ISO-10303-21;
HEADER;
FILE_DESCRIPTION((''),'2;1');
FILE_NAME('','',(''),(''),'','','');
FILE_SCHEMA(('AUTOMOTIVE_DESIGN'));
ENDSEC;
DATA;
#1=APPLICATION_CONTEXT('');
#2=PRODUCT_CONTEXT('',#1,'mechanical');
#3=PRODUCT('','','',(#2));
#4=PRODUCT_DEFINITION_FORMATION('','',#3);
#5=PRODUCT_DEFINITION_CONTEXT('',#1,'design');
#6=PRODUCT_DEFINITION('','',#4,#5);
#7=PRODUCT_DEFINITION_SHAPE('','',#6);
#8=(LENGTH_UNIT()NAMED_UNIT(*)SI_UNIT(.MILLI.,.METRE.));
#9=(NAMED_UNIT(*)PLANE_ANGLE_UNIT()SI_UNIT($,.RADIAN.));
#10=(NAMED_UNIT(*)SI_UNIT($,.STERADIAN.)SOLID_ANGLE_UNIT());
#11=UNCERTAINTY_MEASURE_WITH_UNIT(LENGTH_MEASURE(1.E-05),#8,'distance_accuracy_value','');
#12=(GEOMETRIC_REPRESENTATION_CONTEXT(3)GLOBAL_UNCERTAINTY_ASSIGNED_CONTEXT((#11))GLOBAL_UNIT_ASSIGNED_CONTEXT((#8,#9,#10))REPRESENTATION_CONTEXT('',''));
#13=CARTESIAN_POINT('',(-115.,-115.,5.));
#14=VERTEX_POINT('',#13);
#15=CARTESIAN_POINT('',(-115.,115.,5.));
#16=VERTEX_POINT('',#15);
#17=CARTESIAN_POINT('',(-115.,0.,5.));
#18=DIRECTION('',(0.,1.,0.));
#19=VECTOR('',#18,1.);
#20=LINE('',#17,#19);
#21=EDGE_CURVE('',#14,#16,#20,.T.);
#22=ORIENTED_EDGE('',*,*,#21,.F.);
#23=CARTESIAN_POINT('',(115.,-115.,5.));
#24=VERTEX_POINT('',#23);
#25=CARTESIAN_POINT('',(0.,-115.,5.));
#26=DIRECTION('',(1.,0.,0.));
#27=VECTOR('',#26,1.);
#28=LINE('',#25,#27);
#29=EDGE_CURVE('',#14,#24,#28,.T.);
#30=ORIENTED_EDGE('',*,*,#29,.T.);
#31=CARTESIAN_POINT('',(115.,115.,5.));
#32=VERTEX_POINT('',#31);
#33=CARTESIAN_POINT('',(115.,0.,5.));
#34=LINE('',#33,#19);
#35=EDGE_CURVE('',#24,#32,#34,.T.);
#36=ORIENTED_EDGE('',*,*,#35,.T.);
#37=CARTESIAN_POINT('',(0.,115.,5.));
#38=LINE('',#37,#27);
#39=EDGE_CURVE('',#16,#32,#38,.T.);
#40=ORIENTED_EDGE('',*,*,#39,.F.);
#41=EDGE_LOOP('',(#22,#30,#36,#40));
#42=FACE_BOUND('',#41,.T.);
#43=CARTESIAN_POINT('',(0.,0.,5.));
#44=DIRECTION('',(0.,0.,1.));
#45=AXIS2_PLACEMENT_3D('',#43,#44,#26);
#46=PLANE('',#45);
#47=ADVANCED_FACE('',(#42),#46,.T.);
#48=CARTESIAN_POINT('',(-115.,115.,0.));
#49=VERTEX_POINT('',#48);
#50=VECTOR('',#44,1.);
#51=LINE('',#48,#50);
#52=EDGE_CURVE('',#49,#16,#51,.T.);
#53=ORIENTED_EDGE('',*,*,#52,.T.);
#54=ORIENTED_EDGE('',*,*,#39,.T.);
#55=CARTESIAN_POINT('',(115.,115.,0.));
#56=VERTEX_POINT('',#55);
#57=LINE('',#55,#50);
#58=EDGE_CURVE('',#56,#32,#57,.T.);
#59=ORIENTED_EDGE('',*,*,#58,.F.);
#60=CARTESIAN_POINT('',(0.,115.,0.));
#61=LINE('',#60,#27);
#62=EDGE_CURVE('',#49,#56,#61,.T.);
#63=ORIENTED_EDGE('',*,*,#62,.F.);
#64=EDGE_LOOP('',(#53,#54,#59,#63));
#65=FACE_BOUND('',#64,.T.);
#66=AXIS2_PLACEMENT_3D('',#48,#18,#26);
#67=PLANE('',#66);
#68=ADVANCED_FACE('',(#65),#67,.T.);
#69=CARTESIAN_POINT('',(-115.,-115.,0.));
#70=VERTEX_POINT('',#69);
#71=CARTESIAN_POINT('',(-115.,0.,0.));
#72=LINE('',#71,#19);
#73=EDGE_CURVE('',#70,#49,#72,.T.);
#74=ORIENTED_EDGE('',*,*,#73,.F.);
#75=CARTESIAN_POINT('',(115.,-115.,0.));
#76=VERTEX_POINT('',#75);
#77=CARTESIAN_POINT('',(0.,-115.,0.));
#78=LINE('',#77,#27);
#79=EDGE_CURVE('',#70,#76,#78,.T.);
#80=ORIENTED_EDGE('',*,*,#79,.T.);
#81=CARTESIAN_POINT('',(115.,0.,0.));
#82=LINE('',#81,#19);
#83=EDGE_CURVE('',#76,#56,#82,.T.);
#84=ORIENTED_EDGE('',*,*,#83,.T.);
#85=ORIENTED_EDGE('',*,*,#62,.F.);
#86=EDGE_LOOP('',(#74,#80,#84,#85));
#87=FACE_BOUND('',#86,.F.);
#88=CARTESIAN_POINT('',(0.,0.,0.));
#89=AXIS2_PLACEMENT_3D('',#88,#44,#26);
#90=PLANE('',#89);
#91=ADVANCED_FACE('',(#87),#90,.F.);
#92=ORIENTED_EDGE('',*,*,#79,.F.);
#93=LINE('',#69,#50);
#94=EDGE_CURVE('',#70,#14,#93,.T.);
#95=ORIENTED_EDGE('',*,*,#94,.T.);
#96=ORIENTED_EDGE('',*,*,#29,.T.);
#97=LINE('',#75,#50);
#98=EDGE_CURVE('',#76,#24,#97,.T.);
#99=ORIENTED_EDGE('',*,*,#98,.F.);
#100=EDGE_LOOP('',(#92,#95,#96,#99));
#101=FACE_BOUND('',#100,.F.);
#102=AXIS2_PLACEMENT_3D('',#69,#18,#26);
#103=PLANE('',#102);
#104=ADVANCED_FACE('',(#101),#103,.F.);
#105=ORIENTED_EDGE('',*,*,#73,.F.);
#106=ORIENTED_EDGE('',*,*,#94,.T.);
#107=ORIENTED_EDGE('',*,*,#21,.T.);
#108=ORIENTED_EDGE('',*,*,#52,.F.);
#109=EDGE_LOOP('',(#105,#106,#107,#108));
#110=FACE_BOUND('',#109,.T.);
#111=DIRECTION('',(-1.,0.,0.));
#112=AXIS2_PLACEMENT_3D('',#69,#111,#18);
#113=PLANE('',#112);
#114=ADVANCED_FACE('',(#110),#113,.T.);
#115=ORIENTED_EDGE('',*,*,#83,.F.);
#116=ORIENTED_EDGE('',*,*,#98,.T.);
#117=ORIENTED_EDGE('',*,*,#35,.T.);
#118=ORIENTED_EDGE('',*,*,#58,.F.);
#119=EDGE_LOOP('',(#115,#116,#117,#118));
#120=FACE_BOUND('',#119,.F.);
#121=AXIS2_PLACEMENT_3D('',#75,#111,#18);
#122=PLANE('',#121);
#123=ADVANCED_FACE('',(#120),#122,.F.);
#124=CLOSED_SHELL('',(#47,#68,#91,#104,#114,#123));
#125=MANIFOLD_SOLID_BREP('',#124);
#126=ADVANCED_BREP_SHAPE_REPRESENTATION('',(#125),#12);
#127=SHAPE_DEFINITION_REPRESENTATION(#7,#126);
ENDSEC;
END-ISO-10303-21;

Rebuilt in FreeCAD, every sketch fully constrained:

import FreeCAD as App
import Part
import Sketcher
from FreeCAD import Vector

doc = App.newDocument("Part")
params = doc.addObject("Spreadsheet::Sheet", "Params")
for row, (alias, value) in enumerate([
    ("sketch1_width", "230 mm"),
    ("pad1_length", "5 mm"),
], start=1):
    params.set(f"A{row}", alias)
    params.set(f"B{row}", "=" + value)
    params.setAlias(f"B{row}", alias)

body = doc.addObject("PartDesign::Body", "Body")

# Sketch on XY plane
sketch1 = body.newObject("Sketcher::SketchObject", "Sketch")
sketch1.AttachmentSupport = (doc.getObject("XY_Plane"), [""])
sketch1.MapMode = "FlatFace"
sketch1.addGeometry(Part.LineSegment(Vector(-115, 115, 0), Vector(-115, -115, 0)), False)
sketch1.addGeometry(Part.LineSegment(Vector(-115, -115, 0), Vector(115, -115, 0)), False)
sketch1.addGeometry(Part.LineSegment(Vector(115, -115, 0), Vector(115, 115, 0)), False)
sketch1.addGeometry(Part.LineSegment(Vector(115, 115, 0), Vector(-115, 115, 0)), False)
sketch1.addConstraint(Sketcher.Constraint("Coincident", 0, 2, 1, 1))
sketch1.addConstraint(Sketcher.Constraint("Coincident", 1, 2, 2, 1))
sketch1.addConstraint(Sketcher.Constraint("Coincident", 2, 2, 3, 1))
sketch1.addConstraint(Sketcher.Constraint("Coincident", 3, 2, 0, 1))
sketch1.addConstraint(Sketcher.Constraint("Vertical", 0))
sketch1.addConstraint(Sketcher.Constraint("Horizontal", 1))
sketch1.addConstraint(Sketcher.Constraint("Vertical", 2))
sketch1.addConstraint(Sketcher.Constraint("Horizontal", 3))
sketch1.addConstraint(Sketcher.Constraint("Symmetric", 0, 2, 2, 2, -1, 1))
sketch1.addConstraint(Sketcher.Constraint("Equal", 3, 0))
sketch1.addConstraint(Sketcher.Constraint("DistanceX", 1, 1, 1, 2, 230.0))
sketch1.setExpression("Constraints[10]", "Params.sketch1_width")
pad1 = body.newObject("PartDesign::Pad", "Pad")
pad1.Profile = sketch1
pad1.setExpression("Length", "Params.pad1_length")

doc.recompute()
